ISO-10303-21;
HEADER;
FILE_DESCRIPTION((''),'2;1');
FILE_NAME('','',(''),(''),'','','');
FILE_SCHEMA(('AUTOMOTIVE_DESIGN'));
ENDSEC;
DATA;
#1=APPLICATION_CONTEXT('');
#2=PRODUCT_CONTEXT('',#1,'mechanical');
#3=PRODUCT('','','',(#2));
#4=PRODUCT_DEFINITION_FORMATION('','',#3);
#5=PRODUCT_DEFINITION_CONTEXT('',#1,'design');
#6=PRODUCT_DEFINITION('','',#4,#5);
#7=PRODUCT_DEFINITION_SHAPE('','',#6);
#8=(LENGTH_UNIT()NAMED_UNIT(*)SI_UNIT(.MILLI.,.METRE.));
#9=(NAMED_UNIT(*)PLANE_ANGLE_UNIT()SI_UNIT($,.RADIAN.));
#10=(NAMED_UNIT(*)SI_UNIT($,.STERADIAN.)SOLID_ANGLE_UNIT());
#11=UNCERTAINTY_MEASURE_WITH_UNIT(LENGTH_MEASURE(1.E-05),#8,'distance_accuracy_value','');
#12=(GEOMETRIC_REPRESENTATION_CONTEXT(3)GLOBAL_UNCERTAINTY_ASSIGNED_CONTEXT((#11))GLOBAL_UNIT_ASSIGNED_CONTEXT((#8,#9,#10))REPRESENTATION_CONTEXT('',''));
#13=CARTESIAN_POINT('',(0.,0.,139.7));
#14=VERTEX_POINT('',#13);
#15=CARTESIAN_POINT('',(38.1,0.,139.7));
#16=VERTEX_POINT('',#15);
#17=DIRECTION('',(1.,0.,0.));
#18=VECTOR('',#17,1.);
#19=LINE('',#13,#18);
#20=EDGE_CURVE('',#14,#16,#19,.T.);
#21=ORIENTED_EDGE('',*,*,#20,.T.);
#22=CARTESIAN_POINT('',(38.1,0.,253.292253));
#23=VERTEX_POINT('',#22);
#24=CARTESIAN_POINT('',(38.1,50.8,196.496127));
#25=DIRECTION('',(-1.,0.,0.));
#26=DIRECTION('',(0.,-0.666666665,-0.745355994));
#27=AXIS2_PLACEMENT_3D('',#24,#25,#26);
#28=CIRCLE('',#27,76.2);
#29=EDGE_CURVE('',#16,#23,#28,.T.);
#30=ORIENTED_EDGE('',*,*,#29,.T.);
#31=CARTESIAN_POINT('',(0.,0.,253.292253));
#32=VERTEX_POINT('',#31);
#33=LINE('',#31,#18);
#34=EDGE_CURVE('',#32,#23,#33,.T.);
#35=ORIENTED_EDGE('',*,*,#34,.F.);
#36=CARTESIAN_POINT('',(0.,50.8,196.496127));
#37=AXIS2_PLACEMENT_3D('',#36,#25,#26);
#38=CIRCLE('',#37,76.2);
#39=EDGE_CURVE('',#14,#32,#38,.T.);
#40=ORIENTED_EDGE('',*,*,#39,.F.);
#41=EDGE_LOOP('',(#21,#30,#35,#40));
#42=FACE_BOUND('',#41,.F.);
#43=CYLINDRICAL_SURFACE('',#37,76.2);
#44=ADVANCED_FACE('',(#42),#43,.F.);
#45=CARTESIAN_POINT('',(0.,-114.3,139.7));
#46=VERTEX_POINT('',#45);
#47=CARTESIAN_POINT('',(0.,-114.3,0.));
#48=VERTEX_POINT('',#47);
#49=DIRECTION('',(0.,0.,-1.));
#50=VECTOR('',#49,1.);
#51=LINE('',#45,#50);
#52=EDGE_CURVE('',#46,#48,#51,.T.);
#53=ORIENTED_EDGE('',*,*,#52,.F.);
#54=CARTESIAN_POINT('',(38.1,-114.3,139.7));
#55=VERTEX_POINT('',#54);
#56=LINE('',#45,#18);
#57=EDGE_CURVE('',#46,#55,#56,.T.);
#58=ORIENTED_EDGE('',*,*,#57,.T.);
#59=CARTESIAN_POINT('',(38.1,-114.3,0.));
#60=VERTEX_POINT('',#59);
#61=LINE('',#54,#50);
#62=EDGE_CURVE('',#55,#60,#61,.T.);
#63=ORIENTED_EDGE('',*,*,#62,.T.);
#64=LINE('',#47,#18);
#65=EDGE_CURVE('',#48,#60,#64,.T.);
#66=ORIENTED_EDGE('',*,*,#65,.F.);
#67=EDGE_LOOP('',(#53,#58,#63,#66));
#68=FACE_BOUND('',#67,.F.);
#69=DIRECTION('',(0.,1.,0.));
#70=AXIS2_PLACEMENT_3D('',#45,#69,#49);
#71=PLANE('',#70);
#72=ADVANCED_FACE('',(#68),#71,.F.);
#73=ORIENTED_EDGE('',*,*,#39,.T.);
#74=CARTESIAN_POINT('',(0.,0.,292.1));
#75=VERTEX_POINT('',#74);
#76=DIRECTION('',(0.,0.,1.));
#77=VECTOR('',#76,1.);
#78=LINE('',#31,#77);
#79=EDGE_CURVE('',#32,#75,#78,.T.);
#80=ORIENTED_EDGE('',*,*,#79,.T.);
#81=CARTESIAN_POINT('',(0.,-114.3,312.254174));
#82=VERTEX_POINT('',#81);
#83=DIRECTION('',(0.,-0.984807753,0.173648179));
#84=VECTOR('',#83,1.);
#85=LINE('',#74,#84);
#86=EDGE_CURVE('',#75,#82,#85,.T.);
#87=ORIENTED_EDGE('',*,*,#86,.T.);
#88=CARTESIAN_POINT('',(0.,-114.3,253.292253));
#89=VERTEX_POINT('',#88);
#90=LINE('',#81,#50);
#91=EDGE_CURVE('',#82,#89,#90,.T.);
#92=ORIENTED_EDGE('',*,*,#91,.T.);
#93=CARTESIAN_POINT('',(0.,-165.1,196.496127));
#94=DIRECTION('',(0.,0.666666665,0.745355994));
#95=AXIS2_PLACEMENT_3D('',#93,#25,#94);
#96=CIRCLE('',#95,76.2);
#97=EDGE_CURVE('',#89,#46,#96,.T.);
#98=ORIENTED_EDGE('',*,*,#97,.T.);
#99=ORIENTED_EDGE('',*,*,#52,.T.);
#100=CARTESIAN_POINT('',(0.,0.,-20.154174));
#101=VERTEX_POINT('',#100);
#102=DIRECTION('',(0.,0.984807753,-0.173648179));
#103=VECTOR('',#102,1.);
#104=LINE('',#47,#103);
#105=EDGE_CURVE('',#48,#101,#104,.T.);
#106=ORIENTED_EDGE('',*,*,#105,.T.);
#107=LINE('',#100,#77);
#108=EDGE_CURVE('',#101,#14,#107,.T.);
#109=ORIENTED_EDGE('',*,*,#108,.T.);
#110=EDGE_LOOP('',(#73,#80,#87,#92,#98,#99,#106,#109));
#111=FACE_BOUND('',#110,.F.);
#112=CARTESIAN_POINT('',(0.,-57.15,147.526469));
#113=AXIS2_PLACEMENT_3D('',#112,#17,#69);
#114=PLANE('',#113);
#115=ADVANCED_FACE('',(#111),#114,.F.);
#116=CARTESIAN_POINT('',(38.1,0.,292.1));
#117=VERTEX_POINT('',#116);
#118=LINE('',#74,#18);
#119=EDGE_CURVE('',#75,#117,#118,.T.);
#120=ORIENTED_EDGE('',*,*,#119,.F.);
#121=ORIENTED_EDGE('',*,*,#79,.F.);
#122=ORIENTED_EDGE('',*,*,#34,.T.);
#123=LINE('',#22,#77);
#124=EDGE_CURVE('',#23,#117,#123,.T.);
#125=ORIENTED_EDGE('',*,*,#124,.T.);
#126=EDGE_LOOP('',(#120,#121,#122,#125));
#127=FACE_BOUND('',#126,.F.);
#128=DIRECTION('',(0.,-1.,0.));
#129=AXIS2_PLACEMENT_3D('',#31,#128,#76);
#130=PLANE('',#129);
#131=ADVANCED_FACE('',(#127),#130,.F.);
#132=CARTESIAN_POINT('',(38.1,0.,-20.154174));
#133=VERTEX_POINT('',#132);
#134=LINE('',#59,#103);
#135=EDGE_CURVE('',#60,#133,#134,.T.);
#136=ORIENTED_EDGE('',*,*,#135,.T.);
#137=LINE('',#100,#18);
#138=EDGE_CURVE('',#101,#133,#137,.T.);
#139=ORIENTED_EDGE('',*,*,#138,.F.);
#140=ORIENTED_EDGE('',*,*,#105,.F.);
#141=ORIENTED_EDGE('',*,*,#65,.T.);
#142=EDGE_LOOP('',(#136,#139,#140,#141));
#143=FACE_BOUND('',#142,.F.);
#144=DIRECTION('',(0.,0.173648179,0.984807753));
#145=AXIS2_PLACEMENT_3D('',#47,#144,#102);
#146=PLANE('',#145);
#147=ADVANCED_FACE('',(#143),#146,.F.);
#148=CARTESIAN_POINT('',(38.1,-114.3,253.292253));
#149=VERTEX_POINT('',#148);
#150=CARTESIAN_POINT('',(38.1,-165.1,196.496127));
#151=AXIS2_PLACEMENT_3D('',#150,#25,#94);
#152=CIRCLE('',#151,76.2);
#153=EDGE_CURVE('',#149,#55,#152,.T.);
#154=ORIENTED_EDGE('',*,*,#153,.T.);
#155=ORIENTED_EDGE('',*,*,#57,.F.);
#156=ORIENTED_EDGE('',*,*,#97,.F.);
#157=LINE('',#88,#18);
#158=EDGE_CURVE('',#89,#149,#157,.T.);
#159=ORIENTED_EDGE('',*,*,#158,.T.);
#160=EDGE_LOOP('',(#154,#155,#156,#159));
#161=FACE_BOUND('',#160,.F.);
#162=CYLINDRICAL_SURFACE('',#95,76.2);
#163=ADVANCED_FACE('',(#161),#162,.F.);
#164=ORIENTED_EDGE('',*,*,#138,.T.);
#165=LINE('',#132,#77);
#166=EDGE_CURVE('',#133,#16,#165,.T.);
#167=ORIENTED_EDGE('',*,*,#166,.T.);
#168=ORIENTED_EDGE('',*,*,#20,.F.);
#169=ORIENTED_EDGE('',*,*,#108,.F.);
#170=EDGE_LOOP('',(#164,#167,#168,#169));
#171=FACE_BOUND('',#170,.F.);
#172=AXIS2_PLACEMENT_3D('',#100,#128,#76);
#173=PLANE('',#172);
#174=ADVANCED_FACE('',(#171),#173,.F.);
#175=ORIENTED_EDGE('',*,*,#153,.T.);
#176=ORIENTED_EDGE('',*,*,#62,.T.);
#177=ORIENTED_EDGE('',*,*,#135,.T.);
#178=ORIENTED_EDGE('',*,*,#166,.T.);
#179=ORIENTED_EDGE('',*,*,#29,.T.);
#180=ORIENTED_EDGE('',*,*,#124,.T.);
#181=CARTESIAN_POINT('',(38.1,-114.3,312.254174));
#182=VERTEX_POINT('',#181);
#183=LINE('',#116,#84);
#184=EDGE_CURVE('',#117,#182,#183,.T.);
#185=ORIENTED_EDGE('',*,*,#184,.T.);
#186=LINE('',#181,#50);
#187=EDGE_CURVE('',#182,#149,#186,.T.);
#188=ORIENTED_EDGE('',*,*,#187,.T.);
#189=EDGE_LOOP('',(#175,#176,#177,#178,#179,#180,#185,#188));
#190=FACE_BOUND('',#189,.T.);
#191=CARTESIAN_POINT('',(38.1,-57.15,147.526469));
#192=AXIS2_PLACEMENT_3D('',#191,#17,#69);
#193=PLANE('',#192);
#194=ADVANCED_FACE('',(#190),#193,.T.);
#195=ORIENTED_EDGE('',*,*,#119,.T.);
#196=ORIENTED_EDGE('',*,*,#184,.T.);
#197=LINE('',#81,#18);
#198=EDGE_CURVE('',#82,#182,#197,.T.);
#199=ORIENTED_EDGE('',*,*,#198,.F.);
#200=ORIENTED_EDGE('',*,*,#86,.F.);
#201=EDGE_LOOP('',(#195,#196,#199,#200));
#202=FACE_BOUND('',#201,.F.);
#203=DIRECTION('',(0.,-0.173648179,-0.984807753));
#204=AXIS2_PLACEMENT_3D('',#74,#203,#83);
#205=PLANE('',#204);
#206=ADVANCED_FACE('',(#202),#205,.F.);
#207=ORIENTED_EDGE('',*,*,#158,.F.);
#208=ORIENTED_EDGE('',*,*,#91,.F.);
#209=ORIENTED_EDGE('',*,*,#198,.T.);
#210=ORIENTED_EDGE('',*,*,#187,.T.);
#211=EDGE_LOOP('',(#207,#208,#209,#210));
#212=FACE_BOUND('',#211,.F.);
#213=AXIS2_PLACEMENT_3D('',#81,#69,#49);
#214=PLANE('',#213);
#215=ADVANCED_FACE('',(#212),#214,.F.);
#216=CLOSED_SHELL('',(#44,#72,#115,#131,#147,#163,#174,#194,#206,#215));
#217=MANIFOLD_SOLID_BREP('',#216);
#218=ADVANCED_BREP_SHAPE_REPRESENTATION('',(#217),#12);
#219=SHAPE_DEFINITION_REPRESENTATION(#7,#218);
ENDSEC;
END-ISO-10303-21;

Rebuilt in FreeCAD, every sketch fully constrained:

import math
import FreeCAD as App
import Part
import Sketcher

V = App.Vector
Q = App.Units.Quantity

doc = App.newDocument("Part")
body = doc.addObject("PartDesign::Body", "Body")

sketch1 = body.newObject("Sketcher::SketchObject", "Sketch")
sketch1.AttachmentSupport = (doc.getObject("YZ_Plane"), [""])
sketch1.MapMode = "FlatFace"
sketch1.addGeometry(Part.LineSegment(V(-114, 0, 0), V(0, -20, 0)), False)
sketch1.addGeometry(Part.LineSegment(V(0, -20, 0), V(0, 140, 0)), False)
sketch1.addGeometry(Part.ArcOfCircle(Part.Circle(V(51, 196, 0), V(0, 0, 1), 76), math.radians(132), math.radians(228)), False)
sketch1.addGeometry(Part.LineSegment(V(0, 253, 0), V(0, 292, 0)), False)
sketch1.addGeometry(Part.LineSegment(V(0, 292, 0), V(-114, 312, 0)), False)
sketch1.addGeometry(Part.LineSegment(V(-114, 312, 0), V(-114, 253, 0)), False)
sketch1.addGeometry(Part.ArcOfCircle(Part.Circle(V(-165, 196, 0), V(0, 0, 1), 76), math.radians(-48), math.radians(48)), False)
sketch1.addGeometry(Part.LineSegment(V(-114, 140, 0), V(-114, 0, 0)), False)
sketch1.addConstraint(Sketcher.Constraint("Coincident", 0, 2, 1, 1))
sketch1.addConstraint(Sketcher.Constraint("Coincident", 1, 2, 2, 2))
sketch1.addConstraint(Sketcher.Constraint("Coincident", 2, 1, 3, 1))
sketch1.addConstraint(Sketcher.Constraint("Coincident", 3, 2, 4, 1))
sketch1.addConstraint(Sketcher.Constraint("Coincident", 4, 2, 5, 1))
sketch1.addConstraint(Sketcher.Constraint("Coincident", 5, 2, 6, 2))
sketch1.addConstraint(Sketcher.Constraint("Coincident", 6, 1, 7, 1))
sketch1.addConstraint(Sketcher.Constraint("Coincident", 7, 2, 0, 1))
sketch1.addConstraint(Sketcher.Constraint("Vertical", 1))
sketch1.addConstraint(Sketcher.Constraint("Vertical", 3))
sketch1.addConstraint(Sketcher.Constraint("Vertical", 5))
sketch1.addConstraint(Sketcher.Constraint("Vertical", 7))
sketch1.addConstraint(Sketcher.Constraint("Equal", 2, 6))
sketch1.addConstraint(Sketcher.Constraint("PointOnObject", 0, 2, -2))
sketch1.addConstraint(Sketcher.Constraint("PointOnObject", 2, 1, -2))
sketch1.addConstraint(Sketcher.Constraint("PointOnObject", 7, 2, -1))
sketch1.addConstraint(Sketcher.Constraint("Parallel", 0, 4))
sketch1.addConstraint(Sketcher.Constraint("Horizontal", 2, 3, 6, 3))
sketch1.addConstraint(Sketcher.Constraint("Horizontal", 2, 1, 5, 2))
sketch1.addConstraint(Sketcher.Constraint("Horizontal", 1, 2, 6, 1))
sketch1.addConstraint(Sketcher.Constraint("Radius", 2, Q("3 in")))
sketch1.addConstraint(Sketcher.Constraint("DistanceY", 7, 2, 7, 1, Q("5.5 in")))
sketch1.addConstraint(Sketcher.Constraint("DistanceX", -1, 1, 2, 3, Q("2 in")))
sketch1.addConstraint(Sketcher.Constraint("Angle", 0, Q("-10 deg")))
sketch1.addConstraint(Sketcher.Constraint("DistanceY", 1, 2, 3, 2, Q("6 in")))
sketch1.addConstraint(Sketcher.Constraint("DistanceX", 6, 3, -1, 1, Q("6.5 in")))
pad1 = body.newObject("PartDesign::Pad", "Pad")
pad1.Profile = sketch1
pad1.Length = Q("1.5 in")

doc.recompute()
